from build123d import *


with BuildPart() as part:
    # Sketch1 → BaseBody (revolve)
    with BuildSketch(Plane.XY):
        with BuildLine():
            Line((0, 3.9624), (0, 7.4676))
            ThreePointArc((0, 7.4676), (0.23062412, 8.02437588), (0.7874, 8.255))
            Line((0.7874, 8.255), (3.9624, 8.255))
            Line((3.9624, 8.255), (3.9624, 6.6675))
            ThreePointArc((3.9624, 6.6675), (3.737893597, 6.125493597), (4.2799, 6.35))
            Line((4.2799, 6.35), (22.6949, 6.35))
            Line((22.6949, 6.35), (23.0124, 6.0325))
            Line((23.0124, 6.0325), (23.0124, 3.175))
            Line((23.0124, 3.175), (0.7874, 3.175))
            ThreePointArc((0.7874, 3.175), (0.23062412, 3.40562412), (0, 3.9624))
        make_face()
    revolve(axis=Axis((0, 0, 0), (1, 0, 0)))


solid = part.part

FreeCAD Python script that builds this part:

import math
import FreeCAD as App
import Part
import Sketcher
from FreeCAD import Vector
Q = App.Units.Quantity

doc = App.newDocument("Part")
body = doc.addObject("PartDesign::Body", "Body")

# Sketch on XY plane
sketch1 = body.newObject("Sketcher::SketchObject", "Sketch")
sketch1.AttachmentSupport = (doc.getObject("XY_Plane"), [""])
sketch1.MapMode = "FlatFace"
sketch1.addGeometry(Part.LineSegment(Vector(0, 7.47, 0), Vector(0, 3.96, 0)), False)
sketch1.addGeometry(Part.ArcOfCircle(Part.Circle(Vector(0.79, 3.96, 0), Vector(0, 0, 1), 0.79), math.radians(180), math.radians(270)), False)
sketch1.addGeometry(Part.LineSegment(Vector(0.79, 3.17, 0), Vector(23.01, 3.17, 0)), False)
sketch1.addGeometry(Part.LineSegment(Vector(23.01, 3.17, 0), Vector(23.01, 6.03, 0)), False)
sketch1.addGeometry(Part.LineSegment(Vector(23.01, 6.03, 0), Vector(22.69, 6.35, 0)), False)
sketch1.addGeometry(Part.LineSegment(Vector(22.69, 6.35, 0), Vector(4.28, 6.35, 0)), False)
sketch1.addGeometry(Part.ArcOfCircle(Part.Circle(Vector(3.96, 6.35, 0), Vector(0, 0, 1), 0.32), math.radians(90), math.radians(360)), False)
sketch1.addGeometry(Part.LineSegment(Vector(3.96, 6.67, 0), Vector(3.96, 8.26, 0)), False)
sketch1.addGeometry(Part.LineSegment(Vector(3.96, 8.26, 0), Vector(0.79, 8.26, 0)), False)
sketch1.addGeometry(Part.ArcOfCircle(Part.Circle(Vector(0.79, 7.47, 0), Vector(0, 0, 1), 0.79), math.radians(90), math.radians(180)), False)
sketch1.addConstraint(Sketcher.Constraint("Tangent", 0, 2, 1, 1))
sketch1.addConstraint(Sketcher.Constraint("Tangent", 1, 2, 2, 1))
sketch1.addConstraint(Sketcher.Constraint("Coincident", 2, 2, 3, 1))
sketch1.addConstraint(Sketcher.Constraint("Coincident", 3, 2, 4, 1))
sketch1.addConstraint(Sketcher.Constraint("Coincident", 4, 2, 5, 1))
sketch1.addConstraint(Sketcher.Constraint("Coincident", 5, 2, 6, 2))
sketch1.addConstraint(Sketcher.Constraint("Coincident", 6, 1, 7, 1))
sketch1.addConstraint(Sketcher.Constraint("Coincident", 7, 2, 8, 1))
sketch1.addConstraint(Sketcher.Constraint("Tangent", 8, 2, 9, 1))
sketch1.addConstraint(Sketcher.Constraint("Tangent", 9, 2, 0, 1))
sketch1.addConstraint(Sketcher.Constraint("Vertical", 0))
sketch1.addConstraint(Sketcher.Constraint("Horizontal", 2))
sketch1.addConstraint(Sketcher.Constraint("Vertical", 3))
sketch1.addConstraint(Sketcher.Constraint("Horizontal", 5))
sketch1.addConstraint(Sketcher.Constraint("Vertical", 7))
sketch1.addConstraint(Sketcher.Constraint("Horizontal", 8))
sketch1.addConstraint(Sketcher.Constraint("Equal", 1, 9))
sketch1.addConstraint(Sketcher.Constraint("PointOnObject", 0, 2, -2))
sketch1.addConstraint(Sketcher.Constraint("Horizontal", 6, 3, 4, 2))
sketch1.addConstraint(Sketcher.Constraint("Angle", 4, Q("135 deg")))
sketch1.addConstraint(Sketcher.Constraint("Radius", 1, Q("0.031 in")))
sketch1.addConstraint(Sketcher.Constraint("Radius", 6, Q("0.0125 in")))
sketch1.addConstraint(Sketcher.Constraint("DistanceX", 2, 1, 2, 2, Q("0.875 in")))
sketch1.addConstraint(Sketcher.Constraint("DistanceX", 5, 2, 5, 1, Q("0.725 in")))
sketch1.addConstraint(Sketcher.Constraint("DistanceX", 8, 2, 8, 1, Q("0.125 in")))
sketch1.addConstraint(Sketcher.Constraint("DistanceY", 0, 2, 0, 1, Q("0.138 in")))
sketch1.addConstraint(Sketcher.Constraint("DistanceY", 7, 1, 7, 2, Q("0.0625 in")))
sketch1.addConstraint(Sketcher.Constraint("DistanceY", -1, 1, 6, 3, Q("0.25 in")))
sketch1.addConstraint(Sketcher.Constraint("DistanceX", 6, 3, 2, 2, Q("0.75 in")))
revolution = body.newObject("PartDesign::Revolution", "Revolution")
revolution.Profile = sketch1
revolution.ReferenceAxis = (sketch1, ["H_Axis"])
revolution.Angle = 360

doc.recompute()
